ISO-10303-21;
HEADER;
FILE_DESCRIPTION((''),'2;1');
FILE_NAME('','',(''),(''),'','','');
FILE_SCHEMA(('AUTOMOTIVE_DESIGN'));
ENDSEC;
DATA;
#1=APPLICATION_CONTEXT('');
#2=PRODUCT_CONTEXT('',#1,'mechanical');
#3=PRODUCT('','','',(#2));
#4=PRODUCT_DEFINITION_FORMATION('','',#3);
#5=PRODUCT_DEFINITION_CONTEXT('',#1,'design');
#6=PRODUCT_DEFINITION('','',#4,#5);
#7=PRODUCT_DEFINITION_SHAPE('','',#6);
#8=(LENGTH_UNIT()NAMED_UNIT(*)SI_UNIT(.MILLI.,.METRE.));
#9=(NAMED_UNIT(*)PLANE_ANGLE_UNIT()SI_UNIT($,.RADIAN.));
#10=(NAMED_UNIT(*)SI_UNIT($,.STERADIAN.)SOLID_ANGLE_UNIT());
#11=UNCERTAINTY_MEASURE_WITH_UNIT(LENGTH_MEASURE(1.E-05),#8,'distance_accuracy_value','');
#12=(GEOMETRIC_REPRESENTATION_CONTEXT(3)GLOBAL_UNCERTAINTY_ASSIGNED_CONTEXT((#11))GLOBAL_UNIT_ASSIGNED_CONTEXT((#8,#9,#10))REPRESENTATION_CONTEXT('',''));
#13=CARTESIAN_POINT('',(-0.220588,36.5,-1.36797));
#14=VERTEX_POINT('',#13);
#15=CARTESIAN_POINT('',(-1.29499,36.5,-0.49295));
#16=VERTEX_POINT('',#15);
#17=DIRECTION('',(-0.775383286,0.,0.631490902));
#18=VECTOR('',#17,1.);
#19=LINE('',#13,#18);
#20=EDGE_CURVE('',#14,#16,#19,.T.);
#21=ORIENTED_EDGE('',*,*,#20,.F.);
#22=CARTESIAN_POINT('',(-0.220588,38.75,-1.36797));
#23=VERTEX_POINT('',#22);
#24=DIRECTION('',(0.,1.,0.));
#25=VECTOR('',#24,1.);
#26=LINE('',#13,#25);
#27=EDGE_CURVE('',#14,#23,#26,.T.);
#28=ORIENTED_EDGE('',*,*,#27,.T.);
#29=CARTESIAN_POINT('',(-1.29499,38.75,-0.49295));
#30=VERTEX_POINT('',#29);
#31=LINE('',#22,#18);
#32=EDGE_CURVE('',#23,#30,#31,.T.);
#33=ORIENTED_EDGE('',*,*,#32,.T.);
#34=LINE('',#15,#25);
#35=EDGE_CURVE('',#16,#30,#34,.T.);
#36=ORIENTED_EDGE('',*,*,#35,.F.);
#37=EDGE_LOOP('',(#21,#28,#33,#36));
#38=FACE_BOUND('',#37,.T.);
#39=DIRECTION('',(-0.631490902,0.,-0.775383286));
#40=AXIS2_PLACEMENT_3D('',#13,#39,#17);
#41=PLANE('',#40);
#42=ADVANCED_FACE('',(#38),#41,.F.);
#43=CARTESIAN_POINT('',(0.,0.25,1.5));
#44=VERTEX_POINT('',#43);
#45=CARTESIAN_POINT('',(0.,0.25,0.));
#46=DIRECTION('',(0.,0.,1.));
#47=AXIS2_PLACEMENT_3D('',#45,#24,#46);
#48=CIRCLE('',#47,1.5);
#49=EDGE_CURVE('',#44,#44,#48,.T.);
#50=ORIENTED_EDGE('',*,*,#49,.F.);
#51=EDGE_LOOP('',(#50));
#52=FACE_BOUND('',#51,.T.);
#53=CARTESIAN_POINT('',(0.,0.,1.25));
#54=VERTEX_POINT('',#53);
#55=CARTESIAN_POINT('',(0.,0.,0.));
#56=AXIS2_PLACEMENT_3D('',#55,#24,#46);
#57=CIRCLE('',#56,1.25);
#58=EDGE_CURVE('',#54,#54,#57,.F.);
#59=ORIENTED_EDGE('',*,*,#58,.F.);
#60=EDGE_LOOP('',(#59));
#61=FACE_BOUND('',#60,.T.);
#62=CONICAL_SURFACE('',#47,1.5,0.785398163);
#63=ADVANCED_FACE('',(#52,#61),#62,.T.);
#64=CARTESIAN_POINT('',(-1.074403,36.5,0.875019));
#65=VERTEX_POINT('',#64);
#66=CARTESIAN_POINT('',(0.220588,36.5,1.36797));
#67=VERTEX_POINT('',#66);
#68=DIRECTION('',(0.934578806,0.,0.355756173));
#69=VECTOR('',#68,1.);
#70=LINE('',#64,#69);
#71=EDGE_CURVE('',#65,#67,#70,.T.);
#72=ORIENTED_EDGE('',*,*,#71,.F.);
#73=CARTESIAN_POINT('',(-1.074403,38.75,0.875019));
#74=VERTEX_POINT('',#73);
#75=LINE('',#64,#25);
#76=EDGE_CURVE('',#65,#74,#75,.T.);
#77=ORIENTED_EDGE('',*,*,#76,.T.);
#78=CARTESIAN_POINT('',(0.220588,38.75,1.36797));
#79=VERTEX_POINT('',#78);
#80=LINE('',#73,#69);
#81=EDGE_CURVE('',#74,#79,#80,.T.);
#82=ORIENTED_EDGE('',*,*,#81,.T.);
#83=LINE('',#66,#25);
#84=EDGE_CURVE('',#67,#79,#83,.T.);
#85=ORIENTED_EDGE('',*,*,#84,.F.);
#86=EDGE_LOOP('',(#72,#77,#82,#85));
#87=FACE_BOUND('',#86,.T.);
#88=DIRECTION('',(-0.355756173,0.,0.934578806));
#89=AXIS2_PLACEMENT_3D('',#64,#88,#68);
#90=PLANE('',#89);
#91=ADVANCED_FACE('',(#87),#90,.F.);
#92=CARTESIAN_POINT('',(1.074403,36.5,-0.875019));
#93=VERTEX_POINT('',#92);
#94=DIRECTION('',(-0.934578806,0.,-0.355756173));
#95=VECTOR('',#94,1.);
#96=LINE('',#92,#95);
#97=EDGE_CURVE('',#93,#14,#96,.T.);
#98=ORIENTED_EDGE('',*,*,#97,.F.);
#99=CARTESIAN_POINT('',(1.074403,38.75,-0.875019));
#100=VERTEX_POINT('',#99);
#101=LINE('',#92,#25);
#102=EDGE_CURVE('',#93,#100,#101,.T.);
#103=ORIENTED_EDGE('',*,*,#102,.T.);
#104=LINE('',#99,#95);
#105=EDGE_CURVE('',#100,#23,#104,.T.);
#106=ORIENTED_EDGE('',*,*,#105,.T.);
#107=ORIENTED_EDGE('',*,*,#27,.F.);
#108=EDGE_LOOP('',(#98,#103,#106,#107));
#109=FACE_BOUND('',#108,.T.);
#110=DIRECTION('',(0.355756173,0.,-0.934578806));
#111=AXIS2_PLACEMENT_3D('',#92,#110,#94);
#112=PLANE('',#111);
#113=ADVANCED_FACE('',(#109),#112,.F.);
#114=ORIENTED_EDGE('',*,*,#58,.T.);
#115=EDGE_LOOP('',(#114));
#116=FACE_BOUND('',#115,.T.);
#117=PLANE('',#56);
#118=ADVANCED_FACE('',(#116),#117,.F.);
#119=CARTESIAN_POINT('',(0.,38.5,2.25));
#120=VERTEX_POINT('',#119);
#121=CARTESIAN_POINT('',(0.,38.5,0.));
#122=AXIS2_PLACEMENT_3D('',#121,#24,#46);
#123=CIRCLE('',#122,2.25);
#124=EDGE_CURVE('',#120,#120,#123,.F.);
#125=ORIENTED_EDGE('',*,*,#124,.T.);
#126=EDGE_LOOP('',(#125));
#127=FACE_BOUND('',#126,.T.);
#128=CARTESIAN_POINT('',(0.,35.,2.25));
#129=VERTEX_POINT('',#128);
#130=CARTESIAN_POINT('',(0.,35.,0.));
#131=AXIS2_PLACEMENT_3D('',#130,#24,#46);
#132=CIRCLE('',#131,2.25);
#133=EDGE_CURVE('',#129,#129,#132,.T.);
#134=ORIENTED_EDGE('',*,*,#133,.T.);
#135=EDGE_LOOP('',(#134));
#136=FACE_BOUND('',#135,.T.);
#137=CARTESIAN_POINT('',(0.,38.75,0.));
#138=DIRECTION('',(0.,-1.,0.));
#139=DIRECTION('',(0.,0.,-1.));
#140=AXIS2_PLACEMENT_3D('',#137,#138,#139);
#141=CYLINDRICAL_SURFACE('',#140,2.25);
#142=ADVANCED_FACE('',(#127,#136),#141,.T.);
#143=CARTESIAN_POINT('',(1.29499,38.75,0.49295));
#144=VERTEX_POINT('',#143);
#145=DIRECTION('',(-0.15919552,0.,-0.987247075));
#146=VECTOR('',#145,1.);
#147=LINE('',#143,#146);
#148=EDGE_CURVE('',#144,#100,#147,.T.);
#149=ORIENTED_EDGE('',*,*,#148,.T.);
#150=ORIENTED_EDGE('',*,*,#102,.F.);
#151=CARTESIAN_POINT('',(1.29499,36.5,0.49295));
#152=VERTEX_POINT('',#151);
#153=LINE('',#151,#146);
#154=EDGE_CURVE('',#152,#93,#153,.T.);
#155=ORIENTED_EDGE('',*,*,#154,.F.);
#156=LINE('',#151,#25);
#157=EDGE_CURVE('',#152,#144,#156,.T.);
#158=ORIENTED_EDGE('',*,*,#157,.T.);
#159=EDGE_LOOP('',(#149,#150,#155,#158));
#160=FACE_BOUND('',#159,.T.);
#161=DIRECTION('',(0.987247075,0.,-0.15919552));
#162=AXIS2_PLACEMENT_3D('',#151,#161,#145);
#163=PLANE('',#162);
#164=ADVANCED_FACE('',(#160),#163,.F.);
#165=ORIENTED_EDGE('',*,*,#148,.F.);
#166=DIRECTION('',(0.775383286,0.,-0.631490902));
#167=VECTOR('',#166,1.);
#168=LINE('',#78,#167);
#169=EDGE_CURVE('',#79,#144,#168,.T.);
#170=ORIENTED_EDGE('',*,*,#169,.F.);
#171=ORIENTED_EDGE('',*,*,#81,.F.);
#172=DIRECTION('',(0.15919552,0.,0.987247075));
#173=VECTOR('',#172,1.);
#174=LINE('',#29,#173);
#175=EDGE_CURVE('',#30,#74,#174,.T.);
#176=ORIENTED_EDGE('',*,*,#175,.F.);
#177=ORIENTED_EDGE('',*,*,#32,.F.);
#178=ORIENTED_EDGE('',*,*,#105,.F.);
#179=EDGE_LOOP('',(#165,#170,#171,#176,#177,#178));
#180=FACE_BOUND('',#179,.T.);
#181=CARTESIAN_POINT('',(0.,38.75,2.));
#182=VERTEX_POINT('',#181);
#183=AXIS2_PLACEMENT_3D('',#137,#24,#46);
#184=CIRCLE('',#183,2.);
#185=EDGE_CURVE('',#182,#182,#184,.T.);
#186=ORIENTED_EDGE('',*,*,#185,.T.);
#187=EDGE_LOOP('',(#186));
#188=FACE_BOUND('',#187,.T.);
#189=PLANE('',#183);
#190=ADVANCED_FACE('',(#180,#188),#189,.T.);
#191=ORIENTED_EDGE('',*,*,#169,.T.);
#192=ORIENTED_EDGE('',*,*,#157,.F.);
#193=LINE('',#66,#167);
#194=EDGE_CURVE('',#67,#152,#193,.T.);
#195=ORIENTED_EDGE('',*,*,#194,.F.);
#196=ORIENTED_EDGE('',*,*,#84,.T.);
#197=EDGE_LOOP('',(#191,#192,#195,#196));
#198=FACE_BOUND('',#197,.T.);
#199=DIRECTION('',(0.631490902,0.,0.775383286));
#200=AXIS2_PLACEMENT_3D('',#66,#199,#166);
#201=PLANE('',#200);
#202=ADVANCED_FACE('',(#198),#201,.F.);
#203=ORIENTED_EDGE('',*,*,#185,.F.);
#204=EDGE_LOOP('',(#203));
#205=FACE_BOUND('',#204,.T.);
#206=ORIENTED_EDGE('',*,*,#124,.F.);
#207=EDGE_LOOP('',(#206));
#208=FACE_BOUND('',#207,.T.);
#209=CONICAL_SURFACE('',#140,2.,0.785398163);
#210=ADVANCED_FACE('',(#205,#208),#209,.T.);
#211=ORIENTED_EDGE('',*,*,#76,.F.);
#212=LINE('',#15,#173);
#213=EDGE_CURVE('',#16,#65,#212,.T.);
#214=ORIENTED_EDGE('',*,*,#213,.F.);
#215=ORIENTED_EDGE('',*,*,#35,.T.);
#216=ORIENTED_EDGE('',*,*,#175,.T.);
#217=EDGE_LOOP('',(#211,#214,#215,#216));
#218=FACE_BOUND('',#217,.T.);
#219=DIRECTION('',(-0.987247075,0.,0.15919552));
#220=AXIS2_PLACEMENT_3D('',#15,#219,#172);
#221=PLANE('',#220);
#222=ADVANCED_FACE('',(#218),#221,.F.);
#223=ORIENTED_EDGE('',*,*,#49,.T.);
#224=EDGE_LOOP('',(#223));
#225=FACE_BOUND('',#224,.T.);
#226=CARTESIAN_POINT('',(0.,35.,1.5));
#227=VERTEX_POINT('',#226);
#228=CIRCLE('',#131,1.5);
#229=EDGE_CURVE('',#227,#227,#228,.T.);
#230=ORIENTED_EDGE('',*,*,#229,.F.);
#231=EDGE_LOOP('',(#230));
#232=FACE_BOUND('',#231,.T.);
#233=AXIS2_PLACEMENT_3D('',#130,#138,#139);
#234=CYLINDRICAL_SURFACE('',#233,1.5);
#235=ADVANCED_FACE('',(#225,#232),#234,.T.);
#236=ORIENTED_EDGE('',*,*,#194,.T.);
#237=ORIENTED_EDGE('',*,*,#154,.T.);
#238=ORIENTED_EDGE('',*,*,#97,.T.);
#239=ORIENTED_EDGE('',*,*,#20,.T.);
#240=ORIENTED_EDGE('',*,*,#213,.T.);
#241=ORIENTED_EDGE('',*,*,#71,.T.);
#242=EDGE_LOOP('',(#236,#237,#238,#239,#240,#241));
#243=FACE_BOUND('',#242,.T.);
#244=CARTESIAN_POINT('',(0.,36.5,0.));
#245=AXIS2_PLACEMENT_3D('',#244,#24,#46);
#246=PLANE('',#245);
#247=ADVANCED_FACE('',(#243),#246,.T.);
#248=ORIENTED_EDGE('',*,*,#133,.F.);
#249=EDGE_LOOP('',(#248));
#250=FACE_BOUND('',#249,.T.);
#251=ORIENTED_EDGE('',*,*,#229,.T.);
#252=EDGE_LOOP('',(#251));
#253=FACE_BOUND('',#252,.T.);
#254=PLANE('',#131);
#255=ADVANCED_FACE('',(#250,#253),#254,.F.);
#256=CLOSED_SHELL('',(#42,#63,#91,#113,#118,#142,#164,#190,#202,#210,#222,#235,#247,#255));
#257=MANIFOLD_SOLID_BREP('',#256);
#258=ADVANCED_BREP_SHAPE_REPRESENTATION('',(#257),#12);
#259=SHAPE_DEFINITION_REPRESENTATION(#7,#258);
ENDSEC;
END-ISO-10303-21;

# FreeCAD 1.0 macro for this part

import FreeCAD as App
import Part
import Sketcher


def edges_at(feature, points):
    """Names of the edges that pass closest to the given points."""
    edges = feature.Shape.Edges
    near = lambda p: min(range(len(edges)), key=lambda i: edges[i].distToShape(Part.Vertex(*p))[0])
    return sorted({f"Edge{near(p) + 1}" for p in points})


def add_polygon(sketch, points):
    """Adds a closed chain of lines whose ends are joined by coincident constraints."""
    first, n = sketch.GeometryCount, len(points)
    for a, b in zip(points, points[1:] + points[:1]):
        sketch.addGeometry(Part.LineSegment(App.Vector(*a, 0), App.Vector(*b, 0)), False)
    for i in range(n):
        sketch.addConstraint(Sketcher.Constraint("Coincident", first + i, 2, first + (i + 1) % n, 1))

doc = App.newDocument("Part")
params = doc.addObject("Spreadsheet::Sheet", "Params")
for row, (alias, value) in enumerate([
    ("sketch1_diameter", "3 mm"),
    ("pad1_length", "35 mm"),
    ("sketch2_diameter", "4.5 mm"),
    ("pad2_length", "3.75 mm"),
    ("pocket1_length", "2.25 mm"),
    ("chamfer_size", "0.25 mm"),
    ("chamfer2_size", "0.25 mm"),
], start=1):
    params.set(f"A{row}", alias)
    params.set(f"B{row}", "=" + value)
    params.setAlias(f"B{row}", alias)

body = doc.addObject("PartDesign::Body", "Body")

# Sketch on XZ plane
sketch1 = body.newObject("Sketcher::SketchObject", "Sketch")
sketch1.AttachmentSupport = (doc.getObject("XZ_Plane"), [""])
sketch1.MapMode = "FlatFace"
sketch1.addGeometry(Part.Circle(App.Vector(0, 0, 0), App.Vector(0, 0, 1), 1.5), False)
sketch1.addConstraint(Sketcher.Constraint("Coincident", 0, 3, -1, 1))
sketch1.addConstraint(Sketcher.Constraint("Diameter", 0, 3.0))
sketch1.setExpression("Constraints[1]", "Params.sketch1_diameter")
pad1 = body.newObject("PartDesign::Pad", "Pad")
pad1.Profile = sketch1
pad1.setExpression("Length", "Params.pad1_length")
pad1.Reversed = True

# Sketch on XZ plane
sketch2 = body.newObject("Sketcher::SketchObject", "Sketch001")
sketch2.AttachmentSupport = (doc.getObject("XZ_Plane"), [""])
sketch2.MapMode = "FlatFace"
sketch2.AttachmentOffset = App.Placement(App.Vector(0, 0, -35), App.Rotation())
sketch2.addGeometry(Part.Circle(App.Vector(0, 0, 0), App.Vector(0, 0, 1), 2.25), False)
sketch2.addConstraint(Sketcher.Constraint("Coincident", 0, 3, -1, 1))
sketch2.addConstraint(Sketcher.Constraint("Diameter", 0, 4.5))
sketch2.setExpression("Constraints[1]", "Params.sketch2_diameter")
pad2 = body.newObject("PartDesign::Pad", "Pad001")
pad2.Profile = sketch2
pad2.setExpression("Length", "Params.pad2_length")
pad2.Reversed = True

# Sketch on XZ plane
sketch3 = body.newObject("Sketcher::SketchObject", "Sketch002")
sketch3.AttachmentSupport = (doc.getObject("XZ_Plane"), [""])
sketch3.MapMode = "FlatFace"
sketch3.AttachmentOffset = App.Placement(App.Vector(0, 0, -38.75), App.Rotation())
add_polygon(sketch3, [(-1.074403, 0.875019), (0.220588, 1.36797), (1.29499, 0.49295), (1.074403, -0.875019), (-0.220588, -1.36797), (-1.29499, -0.49295)])  # lines 0-5
sketch3.addConstraint(Sketcher.Constraint("Symmetric", 0, 2, 3, 2, -1, 1))
sketch3.addConstraint(Sketcher.Constraint("Symmetric", 1, 2, 4, 2, -1, 1))
sketch3.addConstraint(Sketcher.Constraint("Symmetric", 2, 2, 5, 2, -1, 1))
sketch3.addConstraint(Sketcher.Constraint("Equal", 0, 1))
sketch3.addConstraint(Sketcher.Constraint("Equal", 1, 2))
sketch3.addConstraint(Sketcher.Constraint("DistanceY", 4, 2, 1, 2, 0.9859))
sketch3.addConstraint(Sketcher.Constraint("Distance", 0, 1.385641))
sketch3.addConstraint(Sketcher.Constraint("DistanceY", -1, 1, 0, 2, 1.36797))
sketch3.addConstraint(Sketcher.Constraint("DistanceX", -1, 1, 1, 2, 1.29499))
pocket1 = body.newObject("PartDesign::Pocket", "Pocket")
pocket1.Profile = sketch3
pocket1.setExpression("Length", "Params.pocket1_length")
pocket1.Reversed = True
doc.recompute()

chamfer = body.newObject("PartDesign::Chamfer", "Chamfer")
chamfer.Base = (pocket1, edges_at(pocket1, [(0, 38.75, -2.25)]))
chamfer.setExpression("Size", "Params.chamfer_size")
doc.recompute()

chamfer2 = body.newObject("PartDesign::Chamfer", "Chamfer001")
chamfer2.Base = (chamfer, edges_at(chamfer, [(0, 0, -1.5)]))
chamfer2.setExpression("Size", "Params.chamfer2_size")

doc.recompute()
